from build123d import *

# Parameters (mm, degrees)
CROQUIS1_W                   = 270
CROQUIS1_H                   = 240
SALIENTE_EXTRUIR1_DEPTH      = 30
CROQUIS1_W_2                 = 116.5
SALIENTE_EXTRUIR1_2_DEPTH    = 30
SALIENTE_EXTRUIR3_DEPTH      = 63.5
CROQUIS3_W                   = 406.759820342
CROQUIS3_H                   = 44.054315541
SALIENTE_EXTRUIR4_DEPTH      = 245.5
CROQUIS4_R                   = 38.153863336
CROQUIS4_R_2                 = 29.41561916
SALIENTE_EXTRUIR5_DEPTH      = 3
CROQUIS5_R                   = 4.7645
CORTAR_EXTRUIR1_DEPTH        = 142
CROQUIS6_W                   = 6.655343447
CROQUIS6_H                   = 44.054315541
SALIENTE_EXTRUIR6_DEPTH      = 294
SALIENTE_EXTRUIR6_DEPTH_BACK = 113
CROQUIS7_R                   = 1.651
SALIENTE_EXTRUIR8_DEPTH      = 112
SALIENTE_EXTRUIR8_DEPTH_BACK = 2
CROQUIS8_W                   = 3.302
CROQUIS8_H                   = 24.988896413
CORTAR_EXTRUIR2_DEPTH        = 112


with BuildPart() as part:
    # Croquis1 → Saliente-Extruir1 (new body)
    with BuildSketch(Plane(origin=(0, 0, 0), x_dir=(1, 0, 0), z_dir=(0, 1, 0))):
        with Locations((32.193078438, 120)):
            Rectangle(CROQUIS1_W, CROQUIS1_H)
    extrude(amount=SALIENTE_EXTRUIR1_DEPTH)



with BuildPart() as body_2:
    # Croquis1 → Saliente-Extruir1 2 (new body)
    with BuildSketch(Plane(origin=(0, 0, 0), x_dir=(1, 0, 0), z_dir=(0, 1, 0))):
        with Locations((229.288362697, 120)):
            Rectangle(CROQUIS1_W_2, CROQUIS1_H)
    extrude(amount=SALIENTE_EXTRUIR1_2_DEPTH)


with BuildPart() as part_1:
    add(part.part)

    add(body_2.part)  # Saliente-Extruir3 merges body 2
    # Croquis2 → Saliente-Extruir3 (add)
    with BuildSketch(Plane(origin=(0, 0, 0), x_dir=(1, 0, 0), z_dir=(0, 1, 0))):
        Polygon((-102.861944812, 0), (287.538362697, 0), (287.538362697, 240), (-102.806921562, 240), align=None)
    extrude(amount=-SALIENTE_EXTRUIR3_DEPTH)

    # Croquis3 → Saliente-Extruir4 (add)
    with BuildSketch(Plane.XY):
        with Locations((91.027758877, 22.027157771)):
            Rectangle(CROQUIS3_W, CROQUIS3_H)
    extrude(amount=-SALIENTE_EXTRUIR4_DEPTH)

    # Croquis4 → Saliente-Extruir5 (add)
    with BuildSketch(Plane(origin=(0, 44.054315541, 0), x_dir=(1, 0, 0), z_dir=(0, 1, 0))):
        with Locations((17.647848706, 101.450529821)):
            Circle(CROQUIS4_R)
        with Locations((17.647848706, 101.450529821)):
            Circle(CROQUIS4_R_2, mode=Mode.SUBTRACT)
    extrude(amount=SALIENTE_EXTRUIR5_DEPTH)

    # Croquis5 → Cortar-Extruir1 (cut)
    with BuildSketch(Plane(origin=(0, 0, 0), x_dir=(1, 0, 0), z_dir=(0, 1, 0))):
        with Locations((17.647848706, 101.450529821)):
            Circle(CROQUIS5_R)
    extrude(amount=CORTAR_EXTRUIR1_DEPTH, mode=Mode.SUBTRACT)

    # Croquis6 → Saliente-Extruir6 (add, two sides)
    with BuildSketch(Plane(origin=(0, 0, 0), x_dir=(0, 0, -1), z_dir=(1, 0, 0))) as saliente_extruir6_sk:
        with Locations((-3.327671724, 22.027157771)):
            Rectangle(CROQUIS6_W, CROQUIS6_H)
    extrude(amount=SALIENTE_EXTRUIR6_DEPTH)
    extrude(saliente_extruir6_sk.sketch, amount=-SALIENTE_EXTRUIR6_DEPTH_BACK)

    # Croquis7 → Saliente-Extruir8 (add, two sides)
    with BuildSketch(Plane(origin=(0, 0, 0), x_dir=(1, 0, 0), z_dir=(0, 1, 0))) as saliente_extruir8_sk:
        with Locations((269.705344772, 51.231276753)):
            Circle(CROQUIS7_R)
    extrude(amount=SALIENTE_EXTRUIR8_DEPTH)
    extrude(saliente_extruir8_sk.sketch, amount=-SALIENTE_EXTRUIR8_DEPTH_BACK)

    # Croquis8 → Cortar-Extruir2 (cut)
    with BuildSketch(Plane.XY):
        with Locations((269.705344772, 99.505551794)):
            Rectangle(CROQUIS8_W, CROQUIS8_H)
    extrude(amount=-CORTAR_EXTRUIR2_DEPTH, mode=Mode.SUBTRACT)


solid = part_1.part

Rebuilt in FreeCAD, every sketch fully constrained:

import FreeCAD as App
import Part
import Sketcher

V = App.Vector


def add_polygon(sketch, points):
    """Adds a closed chain of lines whose ends are joined by coincident constraints."""
    first, n = sketch.GeometryCount, len(points)
    for a, b in zip(points, points[1:] + points[:1]):
        sketch.addGeometry(Part.LineSegment(App.Vector(*a, 0), App.Vector(*b, 0)), False)
    for i in range(n):
        sketch.addConstraint(Sketcher.Constraint("Coincident", first + i, 2, first + (i + 1) % n, 1))

doc = App.newDocument("Part")
body = doc.addObject("PartDesign::Body", "Body")

sketch1 = body.newObject("Sketcher::SketchObject", "Sketch")
sketch1.AttachmentSupport = (doc.getObject("XZ_Plane"), [""])
sketch1.MapMode = "FlatFace"
add_polygon(sketch1, [(-103, -240), (-103, 0), (167, 0), (167, -240)])
sketch1.addConstraint(Sketcher.Constraint("Vertical", 0))
sketch1.addConstraint(Sketcher.Constraint("Horizontal", 1))
sketch1.addConstraint(Sketcher.Constraint("Vertical", 2))
sketch1.addConstraint(Sketcher.Constraint("Horizontal", 3))
sketch1.addConstraint(Sketcher.Constraint("PointOnObject", 0, 2, -1))
sketch1.addConstraint(Sketcher.Constraint("DistanceX", 1, 1, 1, 2, 270.0))
sketch1.addConstraint(Sketcher.Constraint("DistanceY", 0, 1, 0, 2, 240.0))
sketch1.addConstraint(Sketcher.Constraint("DistanceX", 0, 2, -1, 1, 102.806922))
pad1 = body.newObject("PartDesign::Pad", "Pad")
pad1.Profile = sketch1
pad1.Length = 30
pad1.Reversed = True
body2 = doc.addObject("PartDesign::Body", "Body001")

sketch2 = body2.newObject("Sketcher::SketchObject", "Sketch001")
sketch2.AttachmentSupport = (doc.getObject("XZ_Plane001"), [""])
sketch2.MapMode = "FlatFace"
add_polygon(sketch2, [(171, -240), (171, 0), (288, 0), (288, -240)])
sketch2.addConstraint(Sketcher.Constraint("Vertical", 0))
sketch2.addConstraint(Sketcher.Constraint("Horizontal", 1))
sketch2.addConstraint(Sketcher.Constraint("Vertical", 2))
sketch2.addConstraint(Sketcher.Constraint("Horizontal", 3))
sketch2.addConstraint(Sketcher.Constraint("PointOnObject", 0, 2, -1))
sketch2.addConstraint(Sketcher.Constraint("DistanceY", 0, 1, 0, 2, 240.0))
sketch2.addConstraint(Sketcher.Constraint("DistanceX", 1, 1, 1, 2, 116.5))
sketch2.addConstraint(Sketcher.Constraint("DistanceX", -1, 1, 0, 2, 171.038363))
pad2 = body2.newObject("PartDesign::Pad", "Pad001")
pad2.Profile = sketch2
pad2.Length = 30
pad2.Reversed = True
body.AllowCompound = True
doc.recompute()

boolean = body.newObject("PartDesign::Boolean", "Boolean")
boolean.Type = "Fuse"
boolean.addObjects([body2])

sketch3 = body.newObject("Sketcher::SketchObject", "Sketch002")
sketch3.AttachmentSupport = (doc.getObject("XZ_Plane"), [""])
sketch3.MapMode = "FlatFace"
add_polygon(sketch3, [(-103, 0), (288, 0), (288, -240), (-103, -240)])
sketch3.addConstraint(Sketcher.Constraint("Horizontal", 0))
sketch3.addConstraint(Sketcher.Constraint("Vertical", 1))
sketch3.addConstraint(Sketcher.Constraint("Horizontal", 2))
sketch3.addConstraint(Sketcher.Constraint("PointOnObject", 0, 2, -1))
sketch3.addConstraint(Sketcher.Constraint("DistanceY", 1, 2, 1, 1, 240.0))
sketch3.addConstraint(Sketcher.Constraint("DistanceX", 0, 1, 0, 2, 390.400308))
sketch3.addConstraint(Sketcher.Constraint("DistanceX", 2, 2, 2, 1, 390.345284))
sketch3.addConstraint(Sketcher.Constraint("DistanceX", 2, 2, -1, 1, 102.806922))
pad3 = body.newObject("PartDesign::Pad", "Pad002")
pad3.Profile = sketch3
pad3.Length = 63.5

sketch4 = body.newObject("Sketcher::SketchObject", "Sketch003")
sketch4.AttachmentSupport = (doc.getObject("XY_Plane"), [""])
sketch4.MapMode = "FlatFace"
add_polygon(sketch4, [(-112, 44), (-112, 0), (294, 0), (294, 44)])
sketch4.addConstraint(Sketcher.Constraint("Vertical", 0))
sketch4.addConstraint(Sketcher.Constraint("Horizontal", 1))
sketch4.addConstraint(Sketcher.Constraint("Vertical", 2))
sketch4.addConstraint(Sketcher.Constraint("Horizontal", 3))
sketch4.addConstraint(Sketcher.Constraint("PointOnObject", 0, 2, -1))
sketch4.addConstraint(Sketcher.Constraint("DistanceX", 1, 1, 1, 2, 406.75982))
sketch4.addConstraint(Sketcher.Constraint("DistanceY", 0, 2, 0, 1, 44.054316))
sketch4.addConstraint(Sketcher.Constraint("DistanceX", 0, 2, -1, 1, 112.352151))
pad4 = body.newObject("PartDesign::Pad", "Pad003")
pad4.Profile = sketch4
pad4.Length = 245.5
pad4.Reversed = True

sketch5 = body.newObject("Sketcher::SketchObject", "Sketch004")
sketch5.AttachmentSupport = (doc.getObject("XZ_Plane"), [""])
sketch5.MapMode = "FlatFace"
sketch5.AttachmentOffset = App.Placement(V(0, 0, -44.054316), App.Rotation())
sketch5.addGeometry(Part.Circle(V(18, -101, 0), V(0, 0, 1), 38), False)
sketch5.addGeometry(Part.Circle(V(18, -101, 0), V(0, 0, 1), 29), False)
sketch5.addConstraint(Sketcher.Constraint("Coincident", 1, 3, 0, 3))
sketch5.addConstraint(Sketcher.Constraint("Diameter", 1, 58.831238))
sketch5.addConstraint(Sketcher.Constraint("Diameter", 0, 76.307727))
sketch5.addConstraint(Sketcher.Constraint("DistanceX", -1, 1, 0, 3, 17.647849))
sketch5.addConstraint(Sketcher.Constraint("DistanceY", 0, 3, -1, 1, 101.45053))
pad5 = body.newObject("PartDesign::Pad", "Pad004")
pad5.Profile = sketch5
pad5.Length = 3
pad5.Reversed = True

sketch6 = body.newObject("Sketcher::SketchObject", "Sketch005")
sketch6.AttachmentSupport = (doc.getObject("XZ_Plane"), [""])
sketch6.MapMode = "FlatFace"
sketch6.addGeometry(Part.Circle(V(17.6, -101.5, 0), V(0, 0, 1), 4.8), False)
sketch6.addConstraint(Sketcher.Constraint("Diameter", 0, 9.529))
sketch6.addConstraint(Sketcher.Constraint("DistanceX", -1, 1, 0, 3, 17.647849))
sketch6.addConstraint(Sketcher.Constraint("DistanceY", 0, 3, -1, 1, 101.45053))
pocket1 = body.newObject("PartDesign::Pocket", "Pocket")
pocket1.Profile = sketch6
pocket1.Length = 142

sketch7 = body.newObject("Sketcher::SketchObject", "Sketch006")
sketch7.AttachmentSupport = (doc.getObject("YZ_Plane"), [""])
sketch7.MapMode = "FlatFace"
add_polygon(sketch7, [(44, 7), (0, 7), (0, 0), (44, 0)])
sketch7.addConstraint(Sketcher.Constraint("Horizontal", 0))
sketch7.addConstraint(Sketcher.Constraint("Vertical", 1))
sketch7.addConstraint(Sketcher.Constraint("Horizontal", 2))
sketch7.addConstraint(Sketcher.Constraint("Vertical", 3))
sketch7.addConstraint(Sketcher.Constraint("Coincident", 1, 2, -1, 1))
sketch7.addConstraint(Sketcher.Constraint("DistanceX", 0, 2, 0, 1, 44.054316))
sketch7.addConstraint(Sketcher.Constraint("DistanceY", 1, 2, 1, 1, 6.655343))
pad6 = body.newObject("PartDesign::Pad", "Pad005")
pad6.Profile = sketch7
pad6.Type = "TwoLengths"
pad6.Length = 294
pad6.Length2 = 113

sketch8 = body.newObject("Sketcher::SketchObject", "Sketch007")
sketch8.AttachmentSupport = (doc.getObject("XZ_Plane"), [""])
sketch8.MapMode = "FlatFace"
sketch8.addGeometry(Part.Circle(V(269.7, -51.2, 0), V(0, 0, 1), 1.7), False)
sketch8.addConstraint(Sketcher.Constraint("Diameter", 0, 3.302))
sketch8.addConstraint(Sketcher.Constraint("DistanceX", -1, 1, 0, 3, 269.705345))
sketch8.addConstraint(Sketcher.Constraint("DistanceY", 0, 3, -1, 1, 51.231277))
pad7 = body.newObject("PartDesign::Pad", "Pad006")
pad7.Profile = sketch8
pad7.Type = "TwoLengths"
pad7.Length = 112
pad7.Length2 = 2
pad7.Reversed = True

sketch9 = body.newObject("Sketcher::SketchObject", "Sketch008")
sketch9.AttachmentSupport = (doc.getObject("XY_Plane"), [""])
sketch9.MapMode = "FlatFace"
add_polygon(sketch9, [(268.1, 112), (268.1, 87), (271.4, 87), (271.4, 112)])
sketch9.addConstraint(Sketcher.Constraint("Vertical", 0))
sketch9.addConstraint(Sketcher.Constraint("Horizontal", 1))
sketch9.addConstraint(Sketcher.Constraint("Vertical", 2))
sketch9.addConstraint(Sketcher.Constraint("Horizontal", 3))
sketch9.addConstraint(Sketcher.Constraint("DistanceY", -1, 1, 2, 2, 112.0))
sketch9.addConstraint(Sketcher.Constraint("DistanceX", 1, 1, 1, 2, 3.302))
sketch9.addConstraint(Sketcher.Constraint("DistanceY", 0, 2, 0, 1, 24.988896))
sketch9.addConstraint(Sketcher.Constraint("DistanceX", -1, 1, 0, 2, 268.054345))
pocket2 = body.newObject("PartDesign::Pocket", "Pocket001")
pocket2.Profile = sketch9
pocket2.Length = 112

doc.recompute()
